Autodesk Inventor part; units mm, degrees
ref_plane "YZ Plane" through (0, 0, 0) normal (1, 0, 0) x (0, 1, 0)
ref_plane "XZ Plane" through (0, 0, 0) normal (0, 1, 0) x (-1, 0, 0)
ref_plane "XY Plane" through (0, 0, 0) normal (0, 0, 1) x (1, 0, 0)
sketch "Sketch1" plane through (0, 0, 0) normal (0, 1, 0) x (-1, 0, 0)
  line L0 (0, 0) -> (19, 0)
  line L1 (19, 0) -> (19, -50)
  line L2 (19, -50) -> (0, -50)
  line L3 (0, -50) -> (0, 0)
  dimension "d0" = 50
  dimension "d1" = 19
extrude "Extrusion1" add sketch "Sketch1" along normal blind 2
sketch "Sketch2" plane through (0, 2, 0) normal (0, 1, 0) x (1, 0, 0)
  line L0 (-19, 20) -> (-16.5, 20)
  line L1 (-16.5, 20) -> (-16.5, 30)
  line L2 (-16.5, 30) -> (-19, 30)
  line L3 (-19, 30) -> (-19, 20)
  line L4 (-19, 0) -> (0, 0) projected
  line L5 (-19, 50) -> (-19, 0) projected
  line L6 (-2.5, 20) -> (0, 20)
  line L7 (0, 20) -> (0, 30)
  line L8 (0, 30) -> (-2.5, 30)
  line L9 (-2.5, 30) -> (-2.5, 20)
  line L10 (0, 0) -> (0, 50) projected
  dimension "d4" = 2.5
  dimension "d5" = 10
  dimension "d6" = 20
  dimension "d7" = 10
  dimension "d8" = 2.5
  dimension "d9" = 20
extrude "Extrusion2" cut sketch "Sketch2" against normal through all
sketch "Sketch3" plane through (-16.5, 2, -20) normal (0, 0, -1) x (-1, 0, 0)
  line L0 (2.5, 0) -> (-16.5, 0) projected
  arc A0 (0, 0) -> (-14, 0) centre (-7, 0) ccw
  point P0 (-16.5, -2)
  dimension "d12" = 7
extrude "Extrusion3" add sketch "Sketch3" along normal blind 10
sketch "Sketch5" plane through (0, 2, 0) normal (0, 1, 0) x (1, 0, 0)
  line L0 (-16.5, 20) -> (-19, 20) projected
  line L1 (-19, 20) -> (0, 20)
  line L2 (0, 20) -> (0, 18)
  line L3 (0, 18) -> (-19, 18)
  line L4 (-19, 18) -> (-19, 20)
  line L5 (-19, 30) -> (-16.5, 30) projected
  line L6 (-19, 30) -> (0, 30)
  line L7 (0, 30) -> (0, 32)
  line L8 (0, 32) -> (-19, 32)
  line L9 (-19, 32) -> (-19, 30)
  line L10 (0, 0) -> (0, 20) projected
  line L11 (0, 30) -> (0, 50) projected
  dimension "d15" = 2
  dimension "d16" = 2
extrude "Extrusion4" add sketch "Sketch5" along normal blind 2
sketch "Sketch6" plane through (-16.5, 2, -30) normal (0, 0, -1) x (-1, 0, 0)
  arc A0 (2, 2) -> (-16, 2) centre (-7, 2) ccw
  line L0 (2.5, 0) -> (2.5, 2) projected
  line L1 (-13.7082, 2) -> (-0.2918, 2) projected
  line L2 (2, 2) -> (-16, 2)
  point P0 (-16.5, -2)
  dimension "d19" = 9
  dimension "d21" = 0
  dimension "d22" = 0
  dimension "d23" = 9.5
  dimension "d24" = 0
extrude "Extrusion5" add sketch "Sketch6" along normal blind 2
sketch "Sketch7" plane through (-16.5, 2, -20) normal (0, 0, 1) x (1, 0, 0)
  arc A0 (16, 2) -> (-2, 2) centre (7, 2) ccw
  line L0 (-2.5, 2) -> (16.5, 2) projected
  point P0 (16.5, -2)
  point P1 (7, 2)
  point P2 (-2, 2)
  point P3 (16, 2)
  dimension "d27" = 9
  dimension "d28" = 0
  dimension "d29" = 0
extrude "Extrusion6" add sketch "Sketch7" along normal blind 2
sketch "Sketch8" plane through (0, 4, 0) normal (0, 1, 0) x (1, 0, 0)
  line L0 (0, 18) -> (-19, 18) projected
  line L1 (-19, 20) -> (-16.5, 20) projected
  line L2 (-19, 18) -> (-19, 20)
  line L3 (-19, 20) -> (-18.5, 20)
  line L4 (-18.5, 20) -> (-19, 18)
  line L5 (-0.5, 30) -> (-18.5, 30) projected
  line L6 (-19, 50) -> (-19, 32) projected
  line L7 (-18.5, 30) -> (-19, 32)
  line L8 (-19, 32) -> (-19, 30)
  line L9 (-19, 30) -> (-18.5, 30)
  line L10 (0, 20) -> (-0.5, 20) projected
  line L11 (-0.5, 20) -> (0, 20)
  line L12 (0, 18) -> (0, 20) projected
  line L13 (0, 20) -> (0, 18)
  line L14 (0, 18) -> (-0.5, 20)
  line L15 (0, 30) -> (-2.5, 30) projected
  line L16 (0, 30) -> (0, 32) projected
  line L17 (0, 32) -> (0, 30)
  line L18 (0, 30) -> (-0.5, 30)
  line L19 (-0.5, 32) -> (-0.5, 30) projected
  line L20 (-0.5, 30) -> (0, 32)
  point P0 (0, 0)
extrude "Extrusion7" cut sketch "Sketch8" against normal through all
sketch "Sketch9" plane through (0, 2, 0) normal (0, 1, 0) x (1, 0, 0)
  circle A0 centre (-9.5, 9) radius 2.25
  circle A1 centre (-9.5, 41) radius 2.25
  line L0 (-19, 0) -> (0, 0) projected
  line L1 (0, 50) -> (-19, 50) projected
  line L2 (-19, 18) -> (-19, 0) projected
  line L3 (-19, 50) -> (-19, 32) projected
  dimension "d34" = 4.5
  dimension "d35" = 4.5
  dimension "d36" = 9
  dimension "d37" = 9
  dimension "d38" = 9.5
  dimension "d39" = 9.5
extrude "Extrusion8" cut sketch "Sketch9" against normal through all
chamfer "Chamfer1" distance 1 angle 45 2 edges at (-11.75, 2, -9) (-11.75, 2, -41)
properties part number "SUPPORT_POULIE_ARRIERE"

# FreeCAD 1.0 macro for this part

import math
import FreeCAD as App
import Part
import Sketcher

V = App.Vector
Q = App.Units.Quantity


def edges_at(feature, points):
    """Names of the edges that pass closest to the given points."""
    edges = feature.Shape.Edges
    near = lambda p: min(range(len(edges)), key=lambda i: edges[i].distToShape(Part.Vertex(*p))[0])
    return sorted({f"Edge{near(p) + 1}" for p in points})


def add_polygon(sketch, points):
    """Adds a closed chain of lines whose ends are joined by coincident constraints."""
    first, n = sketch.GeometryCount, len(points)
    for a, b in zip(points, points[1:] + points[:1]):
        sketch.addGeometry(Part.LineSegment(App.Vector(*a, 0), App.Vector(*b, 0)), False)
    for i in range(n):
        sketch.addConstraint(Sketcher.Constraint("Coincident", first + i, 2, first + (i + 1) % n, 1))

doc = App.newDocument("Part")
body = doc.addObject("PartDesign::Body", "Body")

# Sketch on XZ plane
sketch1 = doc.addObject("Sketcher::SketchObject", "Sketch")
body.addObject(sketch1)
sketch1.AttachmentSupport = (doc.XZ_Plane, [""])
sketch1.MapMode = "FlatFace"
add_polygon(sketch1, [(-19, 0), (0, 0), (0, -50), (-19, -50)])  # lines 0-3
sketch1.addConstraint(Sketcher.Constraint("Horizontal", 0))
sketch1.addConstraint(Sketcher.Constraint("Vertical", 1))
sketch1.addConstraint(Sketcher.Constraint("Horizontal", 2))
sketch1.addConstraint(Sketcher.Constraint("Vertical", 3))
sketch1.addConstraint(Sketcher.Constraint("Coincident", 0, 2, -1, 1))
sketch1.addConstraint(Sketcher.Constraint("DistanceX", 0, 1, 0, 2, Q("19 mm")))
sketch1.addConstraint(Sketcher.Constraint("DistanceY", 1, 2, 1, 1, Q("50 mm")))
pad1 = doc.addObject("PartDesign::Pad", "Pad")
body.addObject(pad1)
pad1.Profile = sketch1
pad1.Length = 2
pad1.Reversed = True

# Sketch on XZ plane
sketch2 = doc.addObject("Sketcher::SketchObject", "Sketch001")
body.addObject(sketch2)
sketch2.AttachmentSupport = (doc.XZ_Plane, [""])
sketch2.MapMode = "FlatFace"
sketch2.AttachmentOffset = App.Placement(V(0, 0, -2), App.Rotation())
add_polygon(sketch2, [(-19, -30), (-19, -20), (-16.5, -20), (-16.5, -30)])  # lines 0-3
add_polygon(sketch2, [(-2.5, -20), (0, -20), (0, -30), (-2.5, -30)])  # lines 4-7
sketch2.addConstraint(Sketcher.Constraint("Vertical", 0))
sketch2.addConstraint(Sketcher.Constraint("Horizontal", 1))
sketch2.addConstraint(Sketcher.Constraint("Vertical", 2))
sketch2.addConstraint(Sketcher.Constraint("Horizontal", 3))
sketch2.addConstraint(Sketcher.Constraint("Horizontal", 4))
sketch2.addConstraint(Sketcher.Constraint("Vertical", 5))
sketch2.addConstraint(Sketcher.Constraint("Horizontal", 6))
sketch2.addConstraint(Sketcher.Constraint("Vertical", 7))
sketch2.addConstraint(Sketcher.Constraint("PointOnObject", 4, 2, -2))
sketch2.addConstraint(Sketcher.Constraint("Horizontal", 1, 2, 4, 2))
sketch2.addConstraint(Sketcher.Constraint("Horizontal", 3, 2, 5, 2))
sketch2.addConstraint(Sketcher.Constraint("Equal", 3, 4))
sketch2.addConstraint(Sketcher.Constraint("DistanceY", 0, 1, 0, 2, Q("10 mm")))
sketch2.addConstraint(Sketcher.Constraint("DistanceX", 1, 1, 1, 2, Q("2.5 mm")))
sketch2.addConstraint(Sketcher.Constraint("DistanceY", 0, 2, -1, 1, Q("20 mm")))
sketch2.addConstraint(Sketcher.Constraint("DistanceX", 0, 2, -1, 1, Q("19 mm")))
pocket1 = doc.addObject("PartDesign::Pocket", "Pocket")
body.addObject(pocket1)
pocket1.Profile = sketch2
pocket1.Type = "ThroughAll"
pocket1.Reversed = True

# Sketch on XY plane
sketch3 = doc.addObject("Sketcher::SketchObject", "Sketch002")
body.addObject(sketch3)
sketch3.AttachmentSupport = (doc.XY_Plane, [""])
sketch3.MapMode = "FlatFace"
sketch3.AttachmentOffset = App.Placement(V(0, 0, -20), App.Rotation())
sketch3.addGeometry(Part.LineSegment(V(-2.5, 2, 0), V(-16.5, 2, 0)), False)
sketch3.addGeometry(Part.ArcOfCircle(Part.Circle(V(-9.5, 2, 0), V(0, 0, 1), 7), math.radians(0), math.radians(180)), False)
sketch3.addConstraint(Sketcher.Constraint("Coincident", 0, 1, 1, 1))
sketch3.addConstraint(Sketcher.Constraint("Coincident", 1, 2, 0, 2))
sketch3.addConstraint(Sketcher.Constraint("Horizontal", 0))
sketch3.addConstraint(Sketcher.Constraint("Horizontal", 1, 3, 0, 1))
sketch3.addConstraint(Sketcher.Constraint("Radius", 1, Q("7 mm")))
sketch3.addConstraint(Sketcher.Constraint("DistanceY", -1, 1, 1, 3, Q("2 mm")))
sketch3.addConstraint(Sketcher.Constraint("DistanceX", 1, 3, -1, 1, Q("9.5 mm")))
pad2 = doc.addObject("PartDesign::Pad", "Pad001")
body.addObject(pad2)
pad2.Profile = sketch3
pad2.Length = 10
pad2.Reversed = True

# Sketch on XZ plane
sketch4 = doc.addObject("Sketcher::SketchObject", "Sketch003")
body.addObject(sketch4)
sketch4.AttachmentSupport = (doc.XZ_Plane, [""])
sketch4.MapMode = "FlatFace"
sketch4.AttachmentOffset = App.Placement(V(0, 0, -2), App.Rotation())
add_polygon(sketch4, [(0, -20), (-19, -20), (-19, -18), (0, -18)])  # lines 0-3
add_polygon(sketch4, [(-19, -32), (-19, -30), (0, -30), (0, -32)])  # lines 4-7
sketch4.addConstraint(Sketcher.Constraint("Horizontal", 0))
sketch4.addConstraint(Sketcher.Constraint("Vertical", 1))
sketch4.addConstraint(Sketcher.Constraint("Horizontal", 2))
sketch4.addConstraint(Sketcher.Constraint("Vertical", 3))
sketch4.addConstraint(Sketcher.Constraint("Vertical", 4))
sketch4.addConstraint(Sketcher.Constraint("Horizontal", 5))
sketch4.addConstraint(Sketcher.Constraint("Vertical", 6))
sketch4.addConstraint(Sketcher.Constraint("Horizontal", 7))
sketch4.addConstraint(Sketcher.Constraint("PointOnObject", 2, 2, -2))
sketch4.addConstraint(Sketcher.Constraint("PointOnObject", 5, 2, -2))
sketch4.addConstraint(Sketcher.Constraint("Vertical", 1, 2, 4, 2))
sketch4.addConstraint(Sketcher.Constraint("Equal", 3, 4))
sketch4.addConstraint(Sketcher.Constraint("DistanceY", 1, 1, 1, 2, Q("2 mm")))
sketch4.addConstraint(Sketcher.Constraint("DistanceX", 0, 2, 0, 1, Q("19 mm")))
sketch4.addConstraint(Sketcher.Constraint("DistanceY", 0, 2, -1, 1, Q("20 mm")))
sketch4.addConstraint(Sketcher.Constraint("DistanceY", 4, 2, -1, 1, Q("30 mm")))
pad3 = doc.addObject("PartDesign::Pad", "Pad002")
body.addObject(pad3)
pad3.Profile = sketch4
pad3.Length = 2
pad3.Reversed = True

# Sketch on XY plane
sketch5 = doc.addObject("Sketcher::SketchObject", "Sketch004")
body.addObject(sketch5)
sketch5.AttachmentSupport = (doc.XY_Plane, [""])
sketch5.MapMode = "FlatFace"
sketch5.AttachmentOffset = App.Placement(V(0, 0, -30), App.Rotation())
sketch5.addGeometry(Part.LineSegment(V(-0.5, 4, 0), V(-18.5, 4, 0)), False)
sketch5.addGeometry(Part.ArcOfCircle(Part.Circle(V(-9.5, 4, 0), V(0, 0, 1), 9), math.radians(0), math.radians(180)), False)
sketch5.addConstraint(Sketcher.Constraint("Coincident", 0, 1, 1, 1))
sketch5.addConstraint(Sketcher.Constraint("Coincident", 1, 2, 0, 2))
sketch5.addConstraint(Sketcher.Constraint("Horizontal", 0))
sketch5.addConstraint(Sketcher.Constraint("Horizontal", 1, 3, 0, 1))
sketch5.addConstraint(Sketcher.Constraint("Radius", 1, Q("9 mm")))
sketch5.addConstraint(Sketcher.Constraint("DistanceX", 1, 3, -1, 1, Q("9.5 mm")))
sketch5.addConstraint(Sketcher.Constraint("DistanceY", -1, 1, 1, 3, Q("4 mm")))
pad4 = doc.addObject("PartDesign::Pad", "Pad003")
body.addObject(pad4)
pad4.Profile = sketch5
pad4.Length = 2
pad4.Reversed = True

# Sketch on XY plane
sketch6 = doc.addObject("Sketcher::SketchObject", "Sketch005")
body.addObject(sketch6)
sketch6.AttachmentSupport = (doc.XY_Plane, [""])
sketch6.MapMode = "FlatFace"
sketch6.AttachmentOffset = App.Placement(V(0, 0, -20), App.Rotation())
sketch6.addGeometry(Part.LineSegment(V(-18.5, 4, 0), V(-0.5, 4, 0)), False)
sketch6.addGeometry(Part.ArcOfCircle(Part.Circle(V(-9.5, 4, 0), V(0, 0, 1), 9), math.radians(0), math.radians(180)), False)
sketch6.addConstraint(Sketcher.Constraint("Coincident", 0, 1, 1, 2))
sketch6.addConstraint(Sketcher.Constraint("Coincident", 1, 1, 0, 2))
sketch6.addConstraint(Sketcher.Constraint("Horizontal", 0))
sketch6.addConstraint(Sketcher.Constraint("Horizontal", 1, 3, 0, 1))
sketch6.addConstraint(Sketcher.Constraint("Radius", 1, Q("9 mm")))
sketch6.addConstraint(Sketcher.Constraint("DistanceY", -1, 1, 1, 3, Q("4 mm")))
sketch6.addConstraint(Sketcher.Constraint("DistanceX", 1, 3, -1, 1, Q("9.5 mm")))
pad5 = doc.addObject("PartDesign::Pad", "Pad004")
body.addObject(pad5)
pad5.Profile = sketch6
pad5.Length = 2

# Sketch on XZ plane
sketch7 = doc.addObject("Sketcher::SketchObject", "Sketch006")
body.addObject(sketch7)
sketch7.AttachmentSupport = (doc.XZ_Plane, [""])
sketch7.MapMode = "FlatFace"
sketch7.AttachmentOffset = App.Placement(V(0, 0, -4), App.Rotation())
add_polygon(sketch7, [(-19, -20), (-19, -18), (-18.5, -20)])  # lines 0-2
add_polygon(sketch7, [(-0.5, -20), (0, -18), (0, -20)])  # lines 3-5
add_polygon(sketch7, [(-19, -30), (-18.5, -30), (-19, -32)])  # lines 6-8
add_polygon(sketch7, [(0, -32), (-0.5, -30), (0, -30)])  # lines 9-11
sketch7.addConstraint(Sketcher.Constraint("Vertical", 0))
sketch7.addConstraint(Sketcher.Constraint("Horizontal", 2))
sketch7.addConstraint(Sketcher.Constraint("Vertical", 4))
sketch7.addConstraint(Sketcher.Constraint("Horizontal", 5))
sketch7.addConstraint(Sketcher.Constraint("Horizontal", 6))
sketch7.addConstraint(Sketcher.Constraint("Vertical", 8))
sketch7.addConstraint(Sketcher.Constraint("Horizontal", 10))
sketch7.addConstraint(Sketcher.Constraint("Vertical", 11))
sketch7.addConstraint(Sketcher.Constraint("PointOnObject", 3, 2, -2))
sketch7.addConstraint(Sketcher.Constraint("PointOnObject", 10, 2, -2))
sketch7.addConstraint(Sketcher.Constraint("Parallel", 3, 7))
sketch7.addConstraint(Sketcher.Constraint("Parallel", 1, 9))
sketch7.addConstraint(Sketcher.Constraint("Horizontal", 0, 2, 3, 2))
sketch7.addConstraint(Sketcher.Constraint("Horizontal", 2, 2, 4, 2))
sketch7.addConstraint(Sketcher.Constraint("Horizontal", 8, 2, 9, 2))
sketch7.addConstraint(Sketcher.Constraint("Horizontal", 7, 2, 11, 2))
sketch7.addConstraint(Sketcher.Constraint("Vertical", 1, 2, 6, 2))
sketch7.addConstraint(Sketcher.Constraint("Vertical", 2, 2, 7, 2))
sketch7.addConstraint(Sketcher.Constraint("Vertical", 5, 2, 9, 2))
sketch7.addConstraint(Sketcher.Constraint("DistanceY", 0, 1, 0, 2, Q("2 mm")))
sketch7.addConstraint(Sketcher.Constraint("DistanceX", 2, 2, 2, 1, Q("0.5 mm")))
sketch7.addConstraint(Sketcher.Constraint("DistanceX", 0, 2, -1, 1, Q("19 mm")))
sketch7.addConstraint(Sketcher.Constraint("DistanceY", 0, 2, -1, 1, Q("18 mm")))
sketch7.addConstraint(Sketcher.Constraint("DistanceY", 6, 2, -1, 1, Q("30 mm")))
pocket2 = doc.addObject("PartDesign::Pocket", "Pocket001")
body.addObject(pocket2)
pocket2.Profile = sketch7
pocket2.Type = "ThroughAll"
pocket2.Reversed = True

# Sketch on XZ plane
sketch8 = doc.addObject("Sketcher::SketchObject", "Sketch007")
body.addObject(sketch8)
sketch8.AttachmentSupport = (doc.XZ_Plane, [""])
sketch8.MapMode = "FlatFace"
sketch8.AttachmentOffset = App.Placement(V(0, 0, -2), App.Rotation())
sketch8.addGeometry(Part.Circle(V(-9.5, -9, 0), V(0, 0, 1), 2.25), False)
sketch8.addGeometry(Part.Circle(V(-9.5, -41, 0), V(0, 0, 1), 2.25), False)
sketch8.addConstraint(Sketcher.Constraint("Equal", 0, 1))
sketch8.addConstraint(Sketcher.Constraint("Vertical", 0, 3, 1, 3))
sketch8.addConstraint(Sketcher.Constraint("Diameter", 0, Q("4.5 mm")))
sketch8.addConstraint(Sketcher.Constraint("DistanceY", 0, 3, -1, 1, Q("9 mm")))
sketch8.addConstraint(Sketcher.Constraint("DistanceX", 0, 3, -1, 1, Q("9.5 mm")))
sketch8.addConstraint(Sketcher.Constraint("DistanceY", 1, 3, -1, 1, Q("41 mm")))
pocket3 = doc.addObject("PartDesign::Pocket", "Pocket002")
body.addObject(pocket3)
pocket3.Profile = sketch8
pocket3.Type = "ThroughAll"
pocket3.Reversed = True
doc.recompute()

chamfer = doc.addObject("PartDesign::Chamfer", "Chamfer")
body.addObject(chamfer)
chamfer.Base = (pocket3, edges_at(pocket3, [(-11.75, 2, -9), (-11.75, 2, -41)]))
chamfer.Size = 1

doc.recompute()
